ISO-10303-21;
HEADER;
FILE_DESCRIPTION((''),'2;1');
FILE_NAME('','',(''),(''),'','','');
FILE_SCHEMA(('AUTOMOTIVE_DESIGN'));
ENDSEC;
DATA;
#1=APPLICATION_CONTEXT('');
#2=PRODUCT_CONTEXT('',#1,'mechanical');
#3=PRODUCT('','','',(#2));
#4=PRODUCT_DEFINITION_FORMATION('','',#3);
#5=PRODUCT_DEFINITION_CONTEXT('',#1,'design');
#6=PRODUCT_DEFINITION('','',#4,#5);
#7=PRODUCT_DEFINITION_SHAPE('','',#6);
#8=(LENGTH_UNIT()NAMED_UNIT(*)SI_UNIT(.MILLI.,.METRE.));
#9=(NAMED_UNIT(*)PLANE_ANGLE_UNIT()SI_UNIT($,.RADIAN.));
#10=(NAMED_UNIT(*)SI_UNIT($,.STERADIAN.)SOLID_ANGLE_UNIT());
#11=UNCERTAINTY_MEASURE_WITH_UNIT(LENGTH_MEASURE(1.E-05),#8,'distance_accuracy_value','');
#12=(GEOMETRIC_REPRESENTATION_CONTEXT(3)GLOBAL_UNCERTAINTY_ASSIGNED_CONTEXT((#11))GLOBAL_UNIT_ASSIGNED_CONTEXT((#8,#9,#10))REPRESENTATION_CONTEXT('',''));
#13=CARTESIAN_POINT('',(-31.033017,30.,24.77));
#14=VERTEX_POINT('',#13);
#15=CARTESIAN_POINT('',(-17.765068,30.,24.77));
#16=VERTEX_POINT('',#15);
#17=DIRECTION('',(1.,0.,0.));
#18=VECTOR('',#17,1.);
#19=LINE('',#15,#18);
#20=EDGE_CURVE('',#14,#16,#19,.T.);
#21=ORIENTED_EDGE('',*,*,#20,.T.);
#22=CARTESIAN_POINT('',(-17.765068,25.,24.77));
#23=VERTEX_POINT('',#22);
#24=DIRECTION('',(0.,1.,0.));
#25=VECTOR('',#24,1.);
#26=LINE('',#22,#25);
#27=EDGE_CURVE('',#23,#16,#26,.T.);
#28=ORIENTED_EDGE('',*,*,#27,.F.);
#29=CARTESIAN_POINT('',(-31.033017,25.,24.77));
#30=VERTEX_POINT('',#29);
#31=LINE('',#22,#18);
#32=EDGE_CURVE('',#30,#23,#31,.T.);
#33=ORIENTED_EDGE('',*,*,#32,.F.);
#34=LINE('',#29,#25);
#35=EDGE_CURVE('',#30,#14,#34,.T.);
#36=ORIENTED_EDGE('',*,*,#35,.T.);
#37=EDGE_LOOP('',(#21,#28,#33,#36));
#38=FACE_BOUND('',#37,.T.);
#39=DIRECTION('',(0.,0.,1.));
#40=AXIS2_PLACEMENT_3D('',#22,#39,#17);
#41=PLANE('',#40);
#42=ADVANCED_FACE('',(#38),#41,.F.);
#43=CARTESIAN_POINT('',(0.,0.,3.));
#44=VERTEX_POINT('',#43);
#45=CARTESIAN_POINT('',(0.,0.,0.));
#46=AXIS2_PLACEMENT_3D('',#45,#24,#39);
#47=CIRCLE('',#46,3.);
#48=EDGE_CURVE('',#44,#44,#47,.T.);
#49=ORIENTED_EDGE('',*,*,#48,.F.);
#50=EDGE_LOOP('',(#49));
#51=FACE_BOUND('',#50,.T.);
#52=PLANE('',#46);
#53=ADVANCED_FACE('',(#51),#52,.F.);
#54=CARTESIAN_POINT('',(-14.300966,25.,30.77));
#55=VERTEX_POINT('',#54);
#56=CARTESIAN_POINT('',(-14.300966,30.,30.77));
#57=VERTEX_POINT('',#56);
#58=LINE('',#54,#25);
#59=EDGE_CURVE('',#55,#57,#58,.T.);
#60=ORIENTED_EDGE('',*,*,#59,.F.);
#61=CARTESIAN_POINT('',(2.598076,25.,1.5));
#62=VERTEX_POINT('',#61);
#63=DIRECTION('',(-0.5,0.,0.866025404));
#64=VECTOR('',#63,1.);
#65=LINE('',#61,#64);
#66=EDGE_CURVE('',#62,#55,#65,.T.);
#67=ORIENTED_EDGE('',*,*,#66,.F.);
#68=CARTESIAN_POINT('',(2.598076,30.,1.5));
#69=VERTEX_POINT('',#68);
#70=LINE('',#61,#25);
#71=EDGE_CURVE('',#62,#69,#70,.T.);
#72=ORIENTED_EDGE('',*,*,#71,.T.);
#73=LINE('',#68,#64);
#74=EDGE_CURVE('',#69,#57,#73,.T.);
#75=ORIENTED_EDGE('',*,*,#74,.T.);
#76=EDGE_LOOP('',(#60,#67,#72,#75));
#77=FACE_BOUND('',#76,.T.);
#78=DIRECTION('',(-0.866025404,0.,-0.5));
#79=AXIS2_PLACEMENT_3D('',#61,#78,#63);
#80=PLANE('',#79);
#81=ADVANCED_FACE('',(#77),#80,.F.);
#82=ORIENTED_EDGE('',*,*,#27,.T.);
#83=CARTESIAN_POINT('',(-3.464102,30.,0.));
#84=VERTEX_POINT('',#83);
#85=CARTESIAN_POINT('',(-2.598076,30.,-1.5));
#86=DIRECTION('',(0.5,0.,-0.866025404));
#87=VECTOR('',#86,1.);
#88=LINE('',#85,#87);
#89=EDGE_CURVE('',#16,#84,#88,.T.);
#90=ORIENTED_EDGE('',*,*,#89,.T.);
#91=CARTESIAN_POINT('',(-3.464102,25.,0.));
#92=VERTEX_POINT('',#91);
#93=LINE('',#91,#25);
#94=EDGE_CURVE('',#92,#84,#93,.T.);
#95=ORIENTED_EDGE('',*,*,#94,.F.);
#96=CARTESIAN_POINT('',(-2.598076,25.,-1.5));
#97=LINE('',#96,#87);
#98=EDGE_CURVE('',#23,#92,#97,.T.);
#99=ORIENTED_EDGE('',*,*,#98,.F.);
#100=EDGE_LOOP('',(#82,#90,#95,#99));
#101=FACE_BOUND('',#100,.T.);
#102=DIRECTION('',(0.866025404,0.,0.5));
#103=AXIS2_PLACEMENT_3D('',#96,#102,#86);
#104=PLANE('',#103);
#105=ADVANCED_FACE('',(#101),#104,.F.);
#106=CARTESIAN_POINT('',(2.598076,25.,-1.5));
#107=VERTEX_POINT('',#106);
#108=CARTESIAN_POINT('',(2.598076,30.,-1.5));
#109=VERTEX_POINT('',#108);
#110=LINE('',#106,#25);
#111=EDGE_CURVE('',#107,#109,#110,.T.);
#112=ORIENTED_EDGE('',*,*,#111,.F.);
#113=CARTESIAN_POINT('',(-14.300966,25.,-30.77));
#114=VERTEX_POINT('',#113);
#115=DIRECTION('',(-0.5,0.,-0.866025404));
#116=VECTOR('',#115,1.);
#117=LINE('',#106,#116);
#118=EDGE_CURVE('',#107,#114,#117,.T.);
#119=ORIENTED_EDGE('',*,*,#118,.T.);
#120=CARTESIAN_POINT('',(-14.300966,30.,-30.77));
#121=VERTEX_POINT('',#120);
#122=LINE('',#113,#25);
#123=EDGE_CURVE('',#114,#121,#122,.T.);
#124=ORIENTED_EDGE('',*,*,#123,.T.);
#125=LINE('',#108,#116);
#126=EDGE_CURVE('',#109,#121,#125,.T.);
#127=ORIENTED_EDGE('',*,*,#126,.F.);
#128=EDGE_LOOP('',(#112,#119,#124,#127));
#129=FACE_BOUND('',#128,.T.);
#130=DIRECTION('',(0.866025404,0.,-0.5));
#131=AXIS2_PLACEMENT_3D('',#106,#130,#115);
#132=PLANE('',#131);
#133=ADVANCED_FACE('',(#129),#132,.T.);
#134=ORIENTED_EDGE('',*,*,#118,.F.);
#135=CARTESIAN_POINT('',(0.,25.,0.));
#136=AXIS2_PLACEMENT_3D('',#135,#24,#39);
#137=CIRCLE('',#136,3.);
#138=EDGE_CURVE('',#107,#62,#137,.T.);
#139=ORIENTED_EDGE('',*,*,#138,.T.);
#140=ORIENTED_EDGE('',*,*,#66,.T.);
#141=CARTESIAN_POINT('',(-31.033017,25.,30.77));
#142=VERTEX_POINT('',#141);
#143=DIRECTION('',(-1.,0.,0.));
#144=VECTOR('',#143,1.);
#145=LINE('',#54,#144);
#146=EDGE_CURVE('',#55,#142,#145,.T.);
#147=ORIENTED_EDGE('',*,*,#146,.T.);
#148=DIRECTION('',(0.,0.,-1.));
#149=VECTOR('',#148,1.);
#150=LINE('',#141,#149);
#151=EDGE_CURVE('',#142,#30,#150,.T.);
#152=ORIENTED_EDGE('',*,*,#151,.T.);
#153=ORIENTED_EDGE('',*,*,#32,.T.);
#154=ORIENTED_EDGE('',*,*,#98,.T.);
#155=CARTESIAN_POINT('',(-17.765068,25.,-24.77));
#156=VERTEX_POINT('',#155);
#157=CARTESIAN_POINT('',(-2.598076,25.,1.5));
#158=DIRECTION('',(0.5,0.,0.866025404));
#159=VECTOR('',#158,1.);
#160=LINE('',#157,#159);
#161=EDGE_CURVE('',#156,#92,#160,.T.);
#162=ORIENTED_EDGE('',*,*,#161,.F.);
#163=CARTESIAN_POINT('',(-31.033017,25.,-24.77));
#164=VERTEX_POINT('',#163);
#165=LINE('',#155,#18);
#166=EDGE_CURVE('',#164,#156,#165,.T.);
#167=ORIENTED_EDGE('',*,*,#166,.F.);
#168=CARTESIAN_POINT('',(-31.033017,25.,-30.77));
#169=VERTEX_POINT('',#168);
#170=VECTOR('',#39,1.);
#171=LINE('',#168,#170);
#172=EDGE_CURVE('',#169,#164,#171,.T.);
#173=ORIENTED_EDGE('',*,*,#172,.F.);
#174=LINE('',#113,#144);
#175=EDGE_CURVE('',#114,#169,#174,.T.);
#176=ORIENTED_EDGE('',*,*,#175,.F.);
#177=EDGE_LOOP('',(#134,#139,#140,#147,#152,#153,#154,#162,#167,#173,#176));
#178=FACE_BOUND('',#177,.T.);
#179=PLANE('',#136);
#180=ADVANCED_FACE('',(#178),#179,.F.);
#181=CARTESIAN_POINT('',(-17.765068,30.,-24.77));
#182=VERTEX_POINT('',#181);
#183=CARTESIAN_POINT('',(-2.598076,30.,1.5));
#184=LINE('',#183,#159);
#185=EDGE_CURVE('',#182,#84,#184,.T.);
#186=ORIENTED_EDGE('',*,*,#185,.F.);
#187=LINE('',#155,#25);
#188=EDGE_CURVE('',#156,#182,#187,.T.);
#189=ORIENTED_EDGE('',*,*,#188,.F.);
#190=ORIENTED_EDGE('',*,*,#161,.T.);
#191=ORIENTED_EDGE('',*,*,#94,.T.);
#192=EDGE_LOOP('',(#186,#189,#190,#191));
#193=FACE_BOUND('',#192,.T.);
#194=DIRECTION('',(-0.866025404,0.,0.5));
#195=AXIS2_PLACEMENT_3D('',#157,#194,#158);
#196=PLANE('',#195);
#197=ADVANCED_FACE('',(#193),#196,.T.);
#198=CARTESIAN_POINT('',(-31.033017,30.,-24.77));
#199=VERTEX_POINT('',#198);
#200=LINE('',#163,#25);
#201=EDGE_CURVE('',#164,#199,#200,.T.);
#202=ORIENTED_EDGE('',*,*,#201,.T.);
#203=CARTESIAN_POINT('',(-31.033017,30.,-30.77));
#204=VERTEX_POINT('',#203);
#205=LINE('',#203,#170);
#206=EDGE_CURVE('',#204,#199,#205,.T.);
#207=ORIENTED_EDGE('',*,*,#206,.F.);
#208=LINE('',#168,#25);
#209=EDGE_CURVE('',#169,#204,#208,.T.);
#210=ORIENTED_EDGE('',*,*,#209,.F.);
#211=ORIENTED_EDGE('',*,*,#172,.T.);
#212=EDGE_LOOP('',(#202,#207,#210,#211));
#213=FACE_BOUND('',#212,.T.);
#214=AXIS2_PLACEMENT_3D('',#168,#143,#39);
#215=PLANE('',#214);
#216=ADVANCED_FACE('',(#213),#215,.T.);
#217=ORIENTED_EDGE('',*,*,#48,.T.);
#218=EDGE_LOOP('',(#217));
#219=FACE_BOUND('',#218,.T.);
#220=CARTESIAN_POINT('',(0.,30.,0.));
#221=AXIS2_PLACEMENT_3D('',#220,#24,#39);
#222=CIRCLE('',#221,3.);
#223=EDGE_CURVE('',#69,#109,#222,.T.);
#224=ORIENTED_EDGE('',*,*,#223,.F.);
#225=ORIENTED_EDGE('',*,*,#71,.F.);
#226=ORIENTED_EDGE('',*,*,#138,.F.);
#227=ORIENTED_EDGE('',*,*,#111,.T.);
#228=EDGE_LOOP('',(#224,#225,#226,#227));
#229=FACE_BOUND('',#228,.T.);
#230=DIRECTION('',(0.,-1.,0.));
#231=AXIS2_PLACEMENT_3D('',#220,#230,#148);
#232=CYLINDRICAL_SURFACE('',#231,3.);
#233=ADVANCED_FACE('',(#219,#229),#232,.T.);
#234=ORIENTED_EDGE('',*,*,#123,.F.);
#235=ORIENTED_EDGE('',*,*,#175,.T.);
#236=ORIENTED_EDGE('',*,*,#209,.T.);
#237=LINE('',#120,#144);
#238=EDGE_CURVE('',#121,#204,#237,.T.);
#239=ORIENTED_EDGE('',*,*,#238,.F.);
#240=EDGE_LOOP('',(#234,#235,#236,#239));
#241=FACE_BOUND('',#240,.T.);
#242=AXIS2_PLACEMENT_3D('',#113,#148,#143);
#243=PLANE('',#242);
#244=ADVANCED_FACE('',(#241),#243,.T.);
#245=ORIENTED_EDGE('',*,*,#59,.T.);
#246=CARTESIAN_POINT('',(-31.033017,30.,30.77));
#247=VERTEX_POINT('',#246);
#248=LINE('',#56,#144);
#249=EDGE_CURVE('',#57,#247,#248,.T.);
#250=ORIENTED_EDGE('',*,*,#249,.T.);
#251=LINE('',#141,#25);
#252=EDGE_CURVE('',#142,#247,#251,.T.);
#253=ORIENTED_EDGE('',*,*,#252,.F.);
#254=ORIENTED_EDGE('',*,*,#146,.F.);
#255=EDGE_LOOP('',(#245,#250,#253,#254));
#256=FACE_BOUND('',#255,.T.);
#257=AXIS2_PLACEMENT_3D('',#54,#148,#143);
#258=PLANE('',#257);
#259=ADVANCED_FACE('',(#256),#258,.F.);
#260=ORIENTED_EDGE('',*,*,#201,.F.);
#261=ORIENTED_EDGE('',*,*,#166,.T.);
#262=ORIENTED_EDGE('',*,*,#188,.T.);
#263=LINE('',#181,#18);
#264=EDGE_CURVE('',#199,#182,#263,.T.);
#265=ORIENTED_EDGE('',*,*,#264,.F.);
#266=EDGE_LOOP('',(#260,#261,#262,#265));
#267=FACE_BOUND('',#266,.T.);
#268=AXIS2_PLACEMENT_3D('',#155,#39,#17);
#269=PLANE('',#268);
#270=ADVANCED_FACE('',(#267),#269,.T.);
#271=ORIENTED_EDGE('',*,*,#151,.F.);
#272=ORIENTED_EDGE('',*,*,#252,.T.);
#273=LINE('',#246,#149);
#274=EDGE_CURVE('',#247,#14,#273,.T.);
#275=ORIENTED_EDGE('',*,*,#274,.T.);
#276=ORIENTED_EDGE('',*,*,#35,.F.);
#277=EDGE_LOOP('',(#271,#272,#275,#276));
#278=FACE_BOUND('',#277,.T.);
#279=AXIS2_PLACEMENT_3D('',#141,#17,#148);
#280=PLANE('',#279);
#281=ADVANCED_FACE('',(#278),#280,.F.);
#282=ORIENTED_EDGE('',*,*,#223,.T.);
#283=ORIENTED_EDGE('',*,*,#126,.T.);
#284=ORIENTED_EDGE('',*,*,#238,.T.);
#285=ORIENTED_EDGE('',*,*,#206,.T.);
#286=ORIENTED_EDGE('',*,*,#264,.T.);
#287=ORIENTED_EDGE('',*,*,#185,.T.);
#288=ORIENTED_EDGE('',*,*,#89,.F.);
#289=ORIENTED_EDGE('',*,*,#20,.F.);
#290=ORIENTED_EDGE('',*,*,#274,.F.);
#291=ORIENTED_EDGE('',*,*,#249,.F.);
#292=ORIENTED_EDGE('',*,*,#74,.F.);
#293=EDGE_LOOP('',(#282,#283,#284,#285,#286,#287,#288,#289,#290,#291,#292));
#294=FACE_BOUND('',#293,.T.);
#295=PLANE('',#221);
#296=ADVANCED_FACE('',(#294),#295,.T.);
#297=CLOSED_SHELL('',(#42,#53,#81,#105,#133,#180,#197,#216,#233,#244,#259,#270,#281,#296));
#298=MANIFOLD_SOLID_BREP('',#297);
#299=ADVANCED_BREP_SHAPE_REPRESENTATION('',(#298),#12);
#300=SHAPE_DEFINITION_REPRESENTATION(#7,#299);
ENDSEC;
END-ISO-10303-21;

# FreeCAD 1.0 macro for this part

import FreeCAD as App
import Part
import Sketcher
Q = App.Units.Quantity


def add_polygon(sketch, points):
    """Adds a closed chain of lines whose ends are joined by coincident constraints."""
    first, n = sketch.GeometryCount, len(points)
    for a, b in zip(points, points[1:] + points[:1]):
        sketch.addGeometry(Part.LineSegment(App.Vector(*a, 0), App.Vector(*b, 0)), False)
    for i in range(n):
        sketch.addConstraint(Sketcher.Constraint("Coincident", first + i, 2, first + (i + 1) % n, 1))

doc = App.newDocument("Part")
body = doc.addObject("PartDesign::Body", "Body")

sketch1 = body.newObject("Sketcher::SketchObject", "Sketch")
sketch1.AttachmentSupport = (doc.getObject("XZ_Plane"), [""])
sketch1.MapMode = "FlatFace"
sketch1.addGeometry(Part.Circle(App.Vector(0, 0, 0), App.Vector(0, 0, 1), 3), False)
sketch1.addConstraint([
    Sketcher.Constraint("Coincident", 0, 3, -1, 1),
    Sketcher.Constraint("Diameter", 0, 6.0),
])
pad1 = body.newObject("PartDesign::Pad", "Pad")
pad1.Profile = sketch1
pad1.Length = 30
pad1.Reversed = True

sketch2 = body.newObject("Sketcher::SketchObject", "Sketch001")
sketch2.AttachmentSupport = (doc.getObject("XZ_Plane"), [""])
sketch2.MapMode = "FlatFace"
sketch2.AttachmentOffset = App.Placement(App.Vector(0, 0, -30), App.Rotation())
add_polygon(sketch2, [(3, -2), (-14, -31), (-31, -31), (-31, -25), (-18, -25), (-3, 2)])
sketch2.addConstraint([
    Sketcher.Constraint("Horizontal", 1),
    Sketcher.Constraint("Vertical", 2),
    Sketcher.Constraint("Horizontal", 3),
    Sketcher.Constraint("Symmetric", 4, 2, 5, 2, -1, 1),
    Sketcher.Constraint("Parallel", 0, 4),
    Sketcher.Constraint("Perpendicular", 4, 5),
    Sketcher.Constraint("DistanceY", 2, 1, 2, 2, 6.0),
    Sketcher.Constraint("Angle", 0, Q("-120 deg")),
    Sketcher.Constraint("Distance", 5, 6.0),
    Sketcher.Constraint("DistanceY", 0, 2, -1, 1, 30.77),
    Sketcher.Constraint("DistanceX", 1, 2, 1, 1, 16.732051),
])
pad2 = body.newObject("PartDesign::Pad", "Pad001")
pad2.Profile = sketch2
pad2.Length = 5
doc.recompute()

mirrored = body.newObject("PartDesign::Mirrored", "Mirrored")
mirrored.Originals = [pad2]
mirrored.MirrorPlane = (doc.getObject("XY_Plane"), [""])
body.Tip = mirrored

doc.recompute()
